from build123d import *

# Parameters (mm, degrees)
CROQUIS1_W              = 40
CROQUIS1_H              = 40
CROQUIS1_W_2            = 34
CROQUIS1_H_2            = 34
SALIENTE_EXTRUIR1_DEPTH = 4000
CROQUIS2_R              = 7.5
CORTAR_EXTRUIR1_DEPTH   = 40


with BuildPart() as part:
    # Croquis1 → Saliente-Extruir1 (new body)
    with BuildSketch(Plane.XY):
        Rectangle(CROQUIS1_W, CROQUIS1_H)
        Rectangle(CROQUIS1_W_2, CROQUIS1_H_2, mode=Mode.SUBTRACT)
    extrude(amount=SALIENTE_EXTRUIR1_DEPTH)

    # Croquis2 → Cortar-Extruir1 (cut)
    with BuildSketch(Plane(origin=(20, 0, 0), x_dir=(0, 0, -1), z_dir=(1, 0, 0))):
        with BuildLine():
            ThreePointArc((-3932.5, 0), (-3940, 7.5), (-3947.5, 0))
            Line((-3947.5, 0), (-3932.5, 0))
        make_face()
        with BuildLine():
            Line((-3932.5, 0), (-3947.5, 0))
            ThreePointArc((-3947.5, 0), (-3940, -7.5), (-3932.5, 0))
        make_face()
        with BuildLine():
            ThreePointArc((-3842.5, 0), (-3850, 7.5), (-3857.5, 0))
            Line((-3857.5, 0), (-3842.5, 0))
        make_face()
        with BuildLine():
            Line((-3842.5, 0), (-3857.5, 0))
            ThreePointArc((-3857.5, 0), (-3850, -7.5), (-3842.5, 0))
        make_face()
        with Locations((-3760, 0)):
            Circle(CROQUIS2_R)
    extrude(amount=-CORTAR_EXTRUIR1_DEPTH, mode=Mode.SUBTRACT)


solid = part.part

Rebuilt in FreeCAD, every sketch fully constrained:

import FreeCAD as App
import Part
import Sketcher

V = App.Vector


def add_polygon(sketch, points):
    """Adds a closed chain of lines whose ends are joined by coincident constraints."""
    first, n = sketch.GeometryCount, len(points)
    for a, b in zip(points, points[1:] + points[:1]):
        sketch.addGeometry(Part.LineSegment(App.Vector(*a, 0), App.Vector(*b, 0)), False)
    for i in range(n):
        sketch.addConstraint(Sketcher.Constraint("Coincident", first + i, 2, first + (i + 1) % n, 1))

doc = App.newDocument("Part")
body = doc.addObject("PartDesign::Body", "Body")

sketch1 = body.newObject("Sketcher::SketchObject", "Sketch")
sketch1.AttachmentSupport = (doc.getObject("XY_Plane"), [""])
sketch1.MapMode = "FlatFace"
add_polygon(sketch1, [(-20, 20), (-20, -20), (20, -20), (20, 20)])
add_polygon(sketch1, [(17, -17), (-17, -17), (-17, 17), (17, 17)])
sketch1.addConstraint([
    Sketcher.Constraint("Vertical", 0),
    Sketcher.Constraint("Horizontal", 1),
    Sketcher.Constraint("Vertical", 2),
    Sketcher.Constraint("Horizontal", 3),
    Sketcher.Constraint("Horizontal", 4),
    Sketcher.Constraint("Vertical", 5),
    Sketcher.Constraint("Horizontal", 6),
    Sketcher.Constraint("Vertical", 7),
    Sketcher.Constraint("Symmetric", 0, 2, 2, 2, -1, 1),
    Sketcher.Constraint("Symmetric", 4, 2, 6, 2, -1, 1),
    Sketcher.Constraint("Equal", 3, 0),
    Sketcher.Constraint("Equal", 6, 5),
    Sketcher.Constraint("DistanceX", 1, 1, 1, 2, 40.0),
    Sketcher.Constraint("DistanceX", 4, 2, 4, 1, 34.0),
])
pad1 = body.newObject("PartDesign::Pad", "Pad")
pad1.Profile = sketch1
pad1.Length = 4000

sketch2 = body.newObject("Sketcher::SketchObject", "Sketch001")
sketch2.AttachmentSupport = (doc.getObject("YZ_Plane"), [""])
sketch2.MapMode = "FlatFace"
sketch2.AttachmentOffset = App.Placement(V(0, 0, 20), App.Rotation())
sketch2.addGeometry([
    Part.Circle(V(0, 3940, 0), V(0, 0, 1), 8),
    Part.Circle(V(0, 3850, 0), V(0, 0, 1), 8),
    Part.Circle(V(0, 3760, 0), V(0, 0, 1), 8),
], False)
sketch2.addConstraint([
    Sketcher.Constraint("Equal", 0, 1),
    Sketcher.Constraint("Equal", 1, 2),
    Sketcher.Constraint("PointOnObject", 0, 3, -2),
    Sketcher.Constraint("PointOnObject", 1, 3, -2),
    Sketcher.Constraint("PointOnObject", 2, 3, -2),
    Sketcher.Constraint("Diameter", 0, 15.0),
    Sketcher.Constraint("DistanceY", -1, 1, 0, 3, 3940.0),
    Sketcher.Constraint("DistanceY", -1, 1, 1, 3, 3850.0),
    Sketcher.Constraint("DistanceY", -1, 1, 2, 3, 3760.0),
])
pocket1 = body.newObject("PartDesign::Pocket", "Pocket")
pocket1.Profile = sketch2
pocket1.Length = 40

doc.recompute()
